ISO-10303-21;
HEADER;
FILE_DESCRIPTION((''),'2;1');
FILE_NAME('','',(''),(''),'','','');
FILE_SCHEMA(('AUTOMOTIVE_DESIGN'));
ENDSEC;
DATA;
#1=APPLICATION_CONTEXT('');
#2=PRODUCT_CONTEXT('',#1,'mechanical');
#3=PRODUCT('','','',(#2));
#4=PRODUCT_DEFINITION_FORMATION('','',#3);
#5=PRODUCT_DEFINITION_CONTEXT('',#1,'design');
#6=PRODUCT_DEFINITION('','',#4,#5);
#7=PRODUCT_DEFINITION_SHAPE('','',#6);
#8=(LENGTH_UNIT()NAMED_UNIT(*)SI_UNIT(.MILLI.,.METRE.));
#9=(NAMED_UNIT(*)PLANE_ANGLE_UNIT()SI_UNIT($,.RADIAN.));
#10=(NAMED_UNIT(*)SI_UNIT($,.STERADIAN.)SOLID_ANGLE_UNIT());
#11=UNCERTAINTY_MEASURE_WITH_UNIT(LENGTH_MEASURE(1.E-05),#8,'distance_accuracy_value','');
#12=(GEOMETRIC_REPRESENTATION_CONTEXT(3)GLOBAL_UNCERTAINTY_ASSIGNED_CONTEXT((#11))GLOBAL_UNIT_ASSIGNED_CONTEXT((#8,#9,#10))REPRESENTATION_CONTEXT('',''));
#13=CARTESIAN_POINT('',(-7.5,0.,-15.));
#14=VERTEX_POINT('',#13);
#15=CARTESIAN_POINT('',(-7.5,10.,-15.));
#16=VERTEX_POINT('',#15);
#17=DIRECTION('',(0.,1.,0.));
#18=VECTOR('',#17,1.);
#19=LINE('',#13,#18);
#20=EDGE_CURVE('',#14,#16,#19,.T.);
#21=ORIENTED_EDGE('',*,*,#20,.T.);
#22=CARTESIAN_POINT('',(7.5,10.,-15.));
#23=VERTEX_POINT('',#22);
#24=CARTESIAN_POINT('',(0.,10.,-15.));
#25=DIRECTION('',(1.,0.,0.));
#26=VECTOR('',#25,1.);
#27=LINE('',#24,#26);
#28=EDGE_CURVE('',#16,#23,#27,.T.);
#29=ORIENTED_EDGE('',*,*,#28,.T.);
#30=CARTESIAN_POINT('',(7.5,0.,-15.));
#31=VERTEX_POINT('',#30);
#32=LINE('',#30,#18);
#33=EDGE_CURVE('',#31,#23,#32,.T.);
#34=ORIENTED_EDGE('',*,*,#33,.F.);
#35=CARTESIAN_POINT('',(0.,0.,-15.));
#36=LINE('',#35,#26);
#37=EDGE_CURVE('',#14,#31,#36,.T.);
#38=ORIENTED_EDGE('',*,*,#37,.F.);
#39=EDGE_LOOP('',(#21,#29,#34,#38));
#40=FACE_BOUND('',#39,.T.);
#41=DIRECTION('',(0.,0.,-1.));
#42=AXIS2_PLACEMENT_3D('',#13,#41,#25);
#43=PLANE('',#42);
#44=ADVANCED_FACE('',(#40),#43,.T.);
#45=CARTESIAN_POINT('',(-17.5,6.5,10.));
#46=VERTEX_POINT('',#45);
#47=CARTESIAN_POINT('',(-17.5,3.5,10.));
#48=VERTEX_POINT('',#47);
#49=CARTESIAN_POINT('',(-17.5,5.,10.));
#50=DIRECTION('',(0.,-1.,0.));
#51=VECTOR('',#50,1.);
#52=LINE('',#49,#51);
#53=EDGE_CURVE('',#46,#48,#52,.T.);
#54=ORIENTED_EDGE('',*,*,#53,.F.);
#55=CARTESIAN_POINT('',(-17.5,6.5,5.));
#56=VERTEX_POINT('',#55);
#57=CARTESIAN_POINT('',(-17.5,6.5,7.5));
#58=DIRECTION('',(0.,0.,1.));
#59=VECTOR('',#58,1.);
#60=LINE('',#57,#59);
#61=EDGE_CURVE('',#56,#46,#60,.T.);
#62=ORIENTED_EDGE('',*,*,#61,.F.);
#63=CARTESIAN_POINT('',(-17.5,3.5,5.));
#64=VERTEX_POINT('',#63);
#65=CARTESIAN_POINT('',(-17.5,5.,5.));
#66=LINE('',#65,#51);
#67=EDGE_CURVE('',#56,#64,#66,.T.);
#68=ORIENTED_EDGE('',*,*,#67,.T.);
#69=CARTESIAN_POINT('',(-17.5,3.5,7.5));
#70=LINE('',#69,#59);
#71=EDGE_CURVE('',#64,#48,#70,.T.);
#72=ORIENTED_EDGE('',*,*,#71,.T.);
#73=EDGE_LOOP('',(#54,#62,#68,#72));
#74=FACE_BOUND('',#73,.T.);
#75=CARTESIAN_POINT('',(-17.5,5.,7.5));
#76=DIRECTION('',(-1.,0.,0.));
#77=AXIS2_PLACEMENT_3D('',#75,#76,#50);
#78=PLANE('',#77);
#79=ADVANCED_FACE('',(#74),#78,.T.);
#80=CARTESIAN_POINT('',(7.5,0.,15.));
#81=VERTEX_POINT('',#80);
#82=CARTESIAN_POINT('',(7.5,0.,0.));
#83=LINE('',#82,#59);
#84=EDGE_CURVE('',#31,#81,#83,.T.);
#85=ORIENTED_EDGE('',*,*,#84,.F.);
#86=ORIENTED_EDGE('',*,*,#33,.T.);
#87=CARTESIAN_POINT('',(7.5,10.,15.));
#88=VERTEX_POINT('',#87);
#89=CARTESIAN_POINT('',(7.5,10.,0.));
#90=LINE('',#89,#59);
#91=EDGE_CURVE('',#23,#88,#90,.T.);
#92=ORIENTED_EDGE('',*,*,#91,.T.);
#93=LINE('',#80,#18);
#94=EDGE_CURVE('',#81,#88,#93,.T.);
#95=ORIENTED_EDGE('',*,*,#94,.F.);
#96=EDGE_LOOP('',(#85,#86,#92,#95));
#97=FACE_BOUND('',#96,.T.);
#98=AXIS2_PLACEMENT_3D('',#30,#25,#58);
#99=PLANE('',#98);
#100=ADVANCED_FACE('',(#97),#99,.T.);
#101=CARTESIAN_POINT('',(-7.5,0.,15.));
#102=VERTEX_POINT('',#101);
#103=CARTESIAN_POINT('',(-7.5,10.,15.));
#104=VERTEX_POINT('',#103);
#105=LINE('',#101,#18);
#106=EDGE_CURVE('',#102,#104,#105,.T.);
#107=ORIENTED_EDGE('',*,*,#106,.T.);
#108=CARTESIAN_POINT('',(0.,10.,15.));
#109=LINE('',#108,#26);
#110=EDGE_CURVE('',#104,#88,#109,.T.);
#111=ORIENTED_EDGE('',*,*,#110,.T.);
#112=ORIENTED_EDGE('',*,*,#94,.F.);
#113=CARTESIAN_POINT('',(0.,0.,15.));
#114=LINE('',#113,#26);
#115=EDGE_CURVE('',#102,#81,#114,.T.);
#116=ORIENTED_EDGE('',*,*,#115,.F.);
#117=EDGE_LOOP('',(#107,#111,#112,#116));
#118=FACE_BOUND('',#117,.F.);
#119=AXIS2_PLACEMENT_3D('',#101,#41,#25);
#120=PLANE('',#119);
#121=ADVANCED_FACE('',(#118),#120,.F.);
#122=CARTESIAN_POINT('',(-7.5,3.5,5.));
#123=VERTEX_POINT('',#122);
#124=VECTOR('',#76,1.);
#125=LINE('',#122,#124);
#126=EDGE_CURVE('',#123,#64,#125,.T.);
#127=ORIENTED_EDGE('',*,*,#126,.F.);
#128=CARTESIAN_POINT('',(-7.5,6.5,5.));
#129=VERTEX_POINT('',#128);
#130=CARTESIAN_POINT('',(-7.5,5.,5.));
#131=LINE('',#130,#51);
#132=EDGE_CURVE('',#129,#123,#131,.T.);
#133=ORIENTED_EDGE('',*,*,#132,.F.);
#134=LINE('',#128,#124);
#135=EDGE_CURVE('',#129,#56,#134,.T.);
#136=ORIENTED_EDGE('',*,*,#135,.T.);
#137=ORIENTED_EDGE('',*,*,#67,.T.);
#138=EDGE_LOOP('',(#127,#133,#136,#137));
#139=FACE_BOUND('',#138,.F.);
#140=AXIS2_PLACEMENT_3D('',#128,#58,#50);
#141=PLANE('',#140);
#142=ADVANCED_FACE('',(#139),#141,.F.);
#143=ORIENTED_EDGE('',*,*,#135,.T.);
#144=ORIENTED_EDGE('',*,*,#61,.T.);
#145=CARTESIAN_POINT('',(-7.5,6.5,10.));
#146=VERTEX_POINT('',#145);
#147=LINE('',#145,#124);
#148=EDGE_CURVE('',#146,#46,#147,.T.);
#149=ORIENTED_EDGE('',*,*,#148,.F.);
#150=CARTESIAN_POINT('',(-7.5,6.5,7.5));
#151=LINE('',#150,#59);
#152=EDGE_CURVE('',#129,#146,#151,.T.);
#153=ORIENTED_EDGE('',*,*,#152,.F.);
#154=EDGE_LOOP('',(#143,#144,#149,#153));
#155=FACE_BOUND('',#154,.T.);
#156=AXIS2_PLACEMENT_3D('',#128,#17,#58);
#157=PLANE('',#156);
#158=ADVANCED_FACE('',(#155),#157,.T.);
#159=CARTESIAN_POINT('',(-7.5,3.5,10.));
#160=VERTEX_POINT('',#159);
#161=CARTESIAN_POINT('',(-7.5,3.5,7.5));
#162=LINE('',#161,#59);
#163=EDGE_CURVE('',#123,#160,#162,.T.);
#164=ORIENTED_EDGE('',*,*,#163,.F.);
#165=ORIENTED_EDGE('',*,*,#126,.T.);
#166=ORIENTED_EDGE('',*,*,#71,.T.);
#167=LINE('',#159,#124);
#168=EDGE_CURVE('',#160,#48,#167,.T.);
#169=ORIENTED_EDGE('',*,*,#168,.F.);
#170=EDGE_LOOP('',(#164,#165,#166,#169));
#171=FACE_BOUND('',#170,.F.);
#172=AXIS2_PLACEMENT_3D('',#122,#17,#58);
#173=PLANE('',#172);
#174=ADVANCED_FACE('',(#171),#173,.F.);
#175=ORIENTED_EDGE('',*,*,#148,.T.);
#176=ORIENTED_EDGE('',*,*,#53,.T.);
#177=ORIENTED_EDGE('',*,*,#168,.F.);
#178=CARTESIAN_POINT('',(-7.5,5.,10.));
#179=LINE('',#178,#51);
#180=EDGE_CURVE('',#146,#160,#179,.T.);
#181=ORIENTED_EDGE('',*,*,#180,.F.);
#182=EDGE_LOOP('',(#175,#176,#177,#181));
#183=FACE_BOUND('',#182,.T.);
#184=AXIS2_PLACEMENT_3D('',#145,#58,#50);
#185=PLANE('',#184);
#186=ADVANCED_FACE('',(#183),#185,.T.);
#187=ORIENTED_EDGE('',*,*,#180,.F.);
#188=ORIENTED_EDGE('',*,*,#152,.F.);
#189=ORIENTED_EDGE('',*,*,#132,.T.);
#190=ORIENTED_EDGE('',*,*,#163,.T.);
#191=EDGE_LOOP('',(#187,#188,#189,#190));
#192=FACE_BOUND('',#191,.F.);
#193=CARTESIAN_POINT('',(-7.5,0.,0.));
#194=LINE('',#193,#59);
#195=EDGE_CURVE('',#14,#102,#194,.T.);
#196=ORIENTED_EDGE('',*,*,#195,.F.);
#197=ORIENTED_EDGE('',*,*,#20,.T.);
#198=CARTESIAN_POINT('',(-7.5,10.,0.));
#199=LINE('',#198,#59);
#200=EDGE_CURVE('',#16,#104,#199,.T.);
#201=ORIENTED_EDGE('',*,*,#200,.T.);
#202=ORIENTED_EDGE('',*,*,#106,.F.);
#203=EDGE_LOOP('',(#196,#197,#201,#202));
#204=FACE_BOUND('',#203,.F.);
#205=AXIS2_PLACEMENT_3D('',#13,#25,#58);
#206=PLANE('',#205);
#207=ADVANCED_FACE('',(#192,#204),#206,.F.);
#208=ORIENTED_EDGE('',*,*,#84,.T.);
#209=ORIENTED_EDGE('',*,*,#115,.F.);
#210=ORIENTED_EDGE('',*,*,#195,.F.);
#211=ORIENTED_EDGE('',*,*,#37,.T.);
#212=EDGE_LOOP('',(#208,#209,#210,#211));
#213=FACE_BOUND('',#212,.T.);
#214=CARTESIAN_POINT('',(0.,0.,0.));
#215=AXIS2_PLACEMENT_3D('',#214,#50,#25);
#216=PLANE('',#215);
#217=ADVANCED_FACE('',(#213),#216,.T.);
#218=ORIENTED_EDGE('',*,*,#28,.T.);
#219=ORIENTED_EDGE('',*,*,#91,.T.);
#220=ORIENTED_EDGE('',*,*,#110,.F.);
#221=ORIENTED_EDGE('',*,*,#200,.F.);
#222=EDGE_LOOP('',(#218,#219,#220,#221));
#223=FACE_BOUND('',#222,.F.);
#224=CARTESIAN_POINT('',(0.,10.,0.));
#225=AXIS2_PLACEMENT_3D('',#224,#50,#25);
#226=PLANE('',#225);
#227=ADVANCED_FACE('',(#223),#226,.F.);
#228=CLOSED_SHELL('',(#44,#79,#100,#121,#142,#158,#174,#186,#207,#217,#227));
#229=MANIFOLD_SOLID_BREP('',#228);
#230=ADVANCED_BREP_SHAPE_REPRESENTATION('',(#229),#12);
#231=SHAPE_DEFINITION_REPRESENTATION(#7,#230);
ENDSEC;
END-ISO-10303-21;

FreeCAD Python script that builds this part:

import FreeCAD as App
import Part
import Sketcher

V = App.Vector
Q = App.Units.Quantity


def add_polygon(sketch, points):
    """Adds a closed chain of lines whose ends are joined by coincident constraints."""
    first, n = sketch.GeometryCount, len(points)
    for a, b in zip(points, points[1:] + points[:1]):
        sketch.addGeometry(Part.LineSegment(App.Vector(*a, 0), App.Vector(*b, 0)), False)
    for i in range(n):
        sketch.addConstraint(Sketcher.Constraint("Coincident", first + i, 2, first + (i + 1) % n, 1))

doc = App.newDocument("Part")
params = doc.addObject("Spreadsheet::Sheet", "Params")
for row, (alias, value) in enumerate([
    ("sketch1_width", "15 mm"),
    ("sketch1_height", "30 mm"),
    ("pad1_length", "10 mm"),
    ("sketch2_width", "3 mm"),
    ("sketch2_height", "5 mm"),
    ("pad2_length", "10 mm"),
], start=1):
    params.set(f"A{row}", alias)
    params.set(f"B{row}", "=" + value)
    params.setAlias(f"B{row}", alias)

body = doc.addObject("PartDesign::Body", "Body")

# Sketch on XZ plane
sketch1 = body.newObject("Sketcher::SketchObject", "Sketch")
sketch1.AttachmentSupport = (doc.getObject("XZ_Plane"), [""])
sketch1.MapMode = "FlatFace"
add_polygon(sketch1, [(-8, 15), (-8, -15), (8, -15), (8, 15)])  # lines 0-3
sketch1.addConstraint([
    Sketcher.Constraint("Vertical", 0),
    Sketcher.Constraint("Horizontal", 1),
    Sketcher.Constraint("Vertical", 2),
    Sketcher.Constraint("Horizontal", 3),
    Sketcher.Constraint("Symmetric", 0, 2, 2, 2, -1, 1),
    Sketcher.Constraint("DistanceX", 1, 1, 1, 2, Q("15 mm")),
    Sketcher.Constraint("DistanceY", 0, 2, 0, 1, Q("30 mm")),
])
sketch1.setExpression("Constraints[9]", "Params.sketch1_width")
sketch1.setExpression("Constraints[10]", "Params.sketch1_height")
pad1 = body.newObject("PartDesign::Pad", "Pad")
pad1.Profile = sketch1
pad1.setExpression("Length", "Params.pad1_length")
pad1.Reversed = True

# Sketch on YZ plane
sketch2 = body.newObject("Sketcher::SketchObject", "Sketch001")
sketch2.AttachmentSupport = (doc.getObject("YZ_Plane"), [""])
sketch2.MapMode = "FlatFace"
sketch2.AttachmentOffset = App.Placement(V(0, 0, -7.5), App.Rotation())
add_polygon(sketch2, [(6.5, 10), (6.5, 5), (3.5, 5), (3.5, 10)])  # lines 0-3
sketch2.addConstraint([
    Sketcher.Constraint("Vertical", 0),
    Sketcher.Constraint("Horizontal", 1),
    Sketcher.Constraint("Vertical", 2),
    Sketcher.Constraint("Horizontal", 3),
    Sketcher.Constraint("DistanceX", 1, 2, 1, 1, Q("3 mm")),
    Sketcher.Constraint("DistanceY", 0, 2, 0, 1, Q("5 mm")),
    Sketcher.Constraint("DistanceY", -1, 1, 0, 2, Q("5 mm")),
    Sketcher.Constraint("DistanceX", -1, 1, 0, 2, Q("6.5 mm")),
])
sketch2.setExpression("Constraints[8]", "Params.sketch2_width")
sketch2.setExpression("Constraints[9]", "Params.sketch2_height")
pad2 = body.newObject("PartDesign::Pad", "Pad001")
pad2.Profile = sketch2
pad2.setExpression("Length", "Params.pad2_length")
pad2.Reversed = True

doc.recompute()
